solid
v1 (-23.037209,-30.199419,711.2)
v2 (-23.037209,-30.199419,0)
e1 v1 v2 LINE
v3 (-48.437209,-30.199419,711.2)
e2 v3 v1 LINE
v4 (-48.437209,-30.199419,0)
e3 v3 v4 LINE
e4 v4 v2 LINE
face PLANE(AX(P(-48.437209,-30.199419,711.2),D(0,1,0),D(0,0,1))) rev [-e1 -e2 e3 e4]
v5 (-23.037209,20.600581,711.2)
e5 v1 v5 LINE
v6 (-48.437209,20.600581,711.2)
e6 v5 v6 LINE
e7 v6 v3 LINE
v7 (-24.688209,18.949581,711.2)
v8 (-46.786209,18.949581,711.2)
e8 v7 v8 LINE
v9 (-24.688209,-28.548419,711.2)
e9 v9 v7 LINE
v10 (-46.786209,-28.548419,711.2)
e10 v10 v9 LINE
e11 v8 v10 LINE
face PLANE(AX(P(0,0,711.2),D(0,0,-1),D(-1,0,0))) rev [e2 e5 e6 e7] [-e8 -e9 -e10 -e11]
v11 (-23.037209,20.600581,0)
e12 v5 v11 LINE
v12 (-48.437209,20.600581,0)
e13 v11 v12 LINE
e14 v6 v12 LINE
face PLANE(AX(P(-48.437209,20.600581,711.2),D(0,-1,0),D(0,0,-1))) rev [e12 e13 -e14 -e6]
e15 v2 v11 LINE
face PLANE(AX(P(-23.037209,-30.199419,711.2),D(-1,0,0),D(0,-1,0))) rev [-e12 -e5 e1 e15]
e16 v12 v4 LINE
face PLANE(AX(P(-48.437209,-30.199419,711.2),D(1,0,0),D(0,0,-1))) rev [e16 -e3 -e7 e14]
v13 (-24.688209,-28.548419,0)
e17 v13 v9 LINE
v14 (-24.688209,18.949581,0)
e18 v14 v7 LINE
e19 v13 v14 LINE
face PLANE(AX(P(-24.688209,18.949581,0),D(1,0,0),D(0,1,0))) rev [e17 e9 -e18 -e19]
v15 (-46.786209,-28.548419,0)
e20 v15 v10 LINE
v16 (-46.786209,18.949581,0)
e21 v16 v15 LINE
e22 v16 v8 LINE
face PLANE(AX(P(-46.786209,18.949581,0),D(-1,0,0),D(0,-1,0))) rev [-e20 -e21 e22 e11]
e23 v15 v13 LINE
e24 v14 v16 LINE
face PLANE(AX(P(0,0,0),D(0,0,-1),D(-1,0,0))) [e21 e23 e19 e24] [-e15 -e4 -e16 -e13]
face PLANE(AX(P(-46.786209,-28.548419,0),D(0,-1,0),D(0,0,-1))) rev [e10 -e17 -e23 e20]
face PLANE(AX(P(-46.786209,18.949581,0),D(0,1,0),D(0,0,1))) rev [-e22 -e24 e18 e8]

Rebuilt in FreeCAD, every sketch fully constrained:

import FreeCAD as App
import Part
import Sketcher

V = App.Vector
Q = App.Units.Quantity

doc = App.newDocument("Part")
body = doc.addObject("PartDesign::Body", "Body")

sketch1 = body.newObject("Sketcher::SketchObject", "Sketch")
sketch1.AttachmentSupport = (doc.getObject("XY_Plane"), [""])
sketch1.MapMode = "FlatFace"
sketch1.addGeometry(Part.LineSegment(V(-48.437209, 20.600581, 0), V(-48.437209, -30.199419, 0)), False)
sketch1.addGeometry(Part.LineSegment(V(-48.437209, -30.199419, 0), V(-23.037209, -30.199419, 0)), False)
sketch1.addGeometry(Part.LineSegment(V(-23.037209, -30.199419, 0), V(-23.037209, 20.600581, 0)), False)
sketch1.addGeometry(Part.LineSegment(V(-23.037209, 20.600581, 0), V(-48.437209, 20.600581, 0)), False)
sketch1.addConstraint(Sketcher.Constraint("Coincident", 0, 2, 1, 1))
sketch1.addConstraint(Sketcher.Constraint("Coincident", 1, 2, 2, 1))
sketch1.addConstraint(Sketcher.Constraint("Coincident", 2, 2, 3, 1))
sketch1.addConstraint(Sketcher.Constraint("Coincident", 3, 2, 0, 1))
sketch1.addConstraint(Sketcher.Constraint("Vertical", 0))
sketch1.addConstraint(Sketcher.Constraint("Horizontal", 1))
sketch1.addConstraint(Sketcher.Constraint("Vertical", 2))
sketch1.addConstraint(Sketcher.Constraint("Horizontal", 3))
sketch1.addConstraint(Sketcher.Constraint("DistanceX", 1, 1, 1, 2, Q("1 in")))
sketch1.addConstraint(Sketcher.Constraint("DistanceY", 0, 2, 0, 1, Q("2 in")))
sketch1.addConstraint(Sketcher.Constraint("DistanceX", 0, 2, -1, 1, Q("48.437209 mm")))
sketch1.addConstraint(Sketcher.Constraint("DistanceY", 0, 2, -1, 1, Q("30.199419 mm")))
pad1 = body.newObject("PartDesign::Pad", "Pad")
pad1.Profile = sketch1
pad1.Length = Q("28 in")

sketch2 = body.newObject("Sketcher::SketchObject", "Sketch001")
sketch2.AttachmentSupport = (doc.getObject("XY_Plane"), [""])
sketch2.MapMode = "FlatFace"
sketch2.AttachmentOffset = App.Placement(V(0, 0, 28 * 25.4), App.Rotation())
sketch2.addGeometry(Part.LineSegment(V(-46.786209, 18.949581, 0), V(-46.786209, -28.548419, 0)), False)
sketch2.addGeometry(Part.LineSegment(V(-46.786209, -28.548419, 0), V(-24.688209, -28.548419, 0)), False)
sketch2.addGeometry(Part.LineSegment(V(-24.688209, -28.548419, 0), V(-24.688209, 18.949581, 0)), False)
sketch2.addGeometry(Part.LineSegment(V(-24.688209, 18.949581, 0), V(-46.786209, 18.949581, 0)), False)
sketch2.addConstraint(Sketcher.Constraint("Coincident", 0, 2, 1, 1))
sketch2.addConstraint(Sketcher.Constraint("Coincident", 1, 2, 2, 1))
sketch2.addConstraint(Sketcher.Constraint("Coincident", 2, 2, 3, 1))
sketch2.addConstraint(Sketcher.Constraint("Coincident", 3, 2, 0, 1))
sketch2.addConstraint(Sketcher.Constraint("Vertical", 0))
sketch2.addConstraint(Sketcher.Constraint("Horizontal", 1))
sketch2.addConstraint(Sketcher.Constraint("Vertical", 2))
sketch2.addConstraint(Sketcher.Constraint("Horizontal", 3))
sketch2.addConstraint(Sketcher.Constraint("DistanceX", 1, 1, 1, 2, Q("0.87 in")))
sketch2.addConstraint(Sketcher.Constraint("DistanceY", 0, 2, 0, 1, Q("1.87 in")))
sketch2.addConstraint(Sketcher.Constraint("DistanceX", 0, 2, -1, 1, Q("46.786209 mm")))
sketch2.addConstraint(Sketcher.Constraint("DistanceY", 0, 2, -1, 1, Q("28.548419 mm")))
pocket1 = body.newObject("PartDesign::Pocket", "Pocket")
pocket1.Profile = sketch2
pocket1.Type = "ThroughAll"

doc.recompute()
